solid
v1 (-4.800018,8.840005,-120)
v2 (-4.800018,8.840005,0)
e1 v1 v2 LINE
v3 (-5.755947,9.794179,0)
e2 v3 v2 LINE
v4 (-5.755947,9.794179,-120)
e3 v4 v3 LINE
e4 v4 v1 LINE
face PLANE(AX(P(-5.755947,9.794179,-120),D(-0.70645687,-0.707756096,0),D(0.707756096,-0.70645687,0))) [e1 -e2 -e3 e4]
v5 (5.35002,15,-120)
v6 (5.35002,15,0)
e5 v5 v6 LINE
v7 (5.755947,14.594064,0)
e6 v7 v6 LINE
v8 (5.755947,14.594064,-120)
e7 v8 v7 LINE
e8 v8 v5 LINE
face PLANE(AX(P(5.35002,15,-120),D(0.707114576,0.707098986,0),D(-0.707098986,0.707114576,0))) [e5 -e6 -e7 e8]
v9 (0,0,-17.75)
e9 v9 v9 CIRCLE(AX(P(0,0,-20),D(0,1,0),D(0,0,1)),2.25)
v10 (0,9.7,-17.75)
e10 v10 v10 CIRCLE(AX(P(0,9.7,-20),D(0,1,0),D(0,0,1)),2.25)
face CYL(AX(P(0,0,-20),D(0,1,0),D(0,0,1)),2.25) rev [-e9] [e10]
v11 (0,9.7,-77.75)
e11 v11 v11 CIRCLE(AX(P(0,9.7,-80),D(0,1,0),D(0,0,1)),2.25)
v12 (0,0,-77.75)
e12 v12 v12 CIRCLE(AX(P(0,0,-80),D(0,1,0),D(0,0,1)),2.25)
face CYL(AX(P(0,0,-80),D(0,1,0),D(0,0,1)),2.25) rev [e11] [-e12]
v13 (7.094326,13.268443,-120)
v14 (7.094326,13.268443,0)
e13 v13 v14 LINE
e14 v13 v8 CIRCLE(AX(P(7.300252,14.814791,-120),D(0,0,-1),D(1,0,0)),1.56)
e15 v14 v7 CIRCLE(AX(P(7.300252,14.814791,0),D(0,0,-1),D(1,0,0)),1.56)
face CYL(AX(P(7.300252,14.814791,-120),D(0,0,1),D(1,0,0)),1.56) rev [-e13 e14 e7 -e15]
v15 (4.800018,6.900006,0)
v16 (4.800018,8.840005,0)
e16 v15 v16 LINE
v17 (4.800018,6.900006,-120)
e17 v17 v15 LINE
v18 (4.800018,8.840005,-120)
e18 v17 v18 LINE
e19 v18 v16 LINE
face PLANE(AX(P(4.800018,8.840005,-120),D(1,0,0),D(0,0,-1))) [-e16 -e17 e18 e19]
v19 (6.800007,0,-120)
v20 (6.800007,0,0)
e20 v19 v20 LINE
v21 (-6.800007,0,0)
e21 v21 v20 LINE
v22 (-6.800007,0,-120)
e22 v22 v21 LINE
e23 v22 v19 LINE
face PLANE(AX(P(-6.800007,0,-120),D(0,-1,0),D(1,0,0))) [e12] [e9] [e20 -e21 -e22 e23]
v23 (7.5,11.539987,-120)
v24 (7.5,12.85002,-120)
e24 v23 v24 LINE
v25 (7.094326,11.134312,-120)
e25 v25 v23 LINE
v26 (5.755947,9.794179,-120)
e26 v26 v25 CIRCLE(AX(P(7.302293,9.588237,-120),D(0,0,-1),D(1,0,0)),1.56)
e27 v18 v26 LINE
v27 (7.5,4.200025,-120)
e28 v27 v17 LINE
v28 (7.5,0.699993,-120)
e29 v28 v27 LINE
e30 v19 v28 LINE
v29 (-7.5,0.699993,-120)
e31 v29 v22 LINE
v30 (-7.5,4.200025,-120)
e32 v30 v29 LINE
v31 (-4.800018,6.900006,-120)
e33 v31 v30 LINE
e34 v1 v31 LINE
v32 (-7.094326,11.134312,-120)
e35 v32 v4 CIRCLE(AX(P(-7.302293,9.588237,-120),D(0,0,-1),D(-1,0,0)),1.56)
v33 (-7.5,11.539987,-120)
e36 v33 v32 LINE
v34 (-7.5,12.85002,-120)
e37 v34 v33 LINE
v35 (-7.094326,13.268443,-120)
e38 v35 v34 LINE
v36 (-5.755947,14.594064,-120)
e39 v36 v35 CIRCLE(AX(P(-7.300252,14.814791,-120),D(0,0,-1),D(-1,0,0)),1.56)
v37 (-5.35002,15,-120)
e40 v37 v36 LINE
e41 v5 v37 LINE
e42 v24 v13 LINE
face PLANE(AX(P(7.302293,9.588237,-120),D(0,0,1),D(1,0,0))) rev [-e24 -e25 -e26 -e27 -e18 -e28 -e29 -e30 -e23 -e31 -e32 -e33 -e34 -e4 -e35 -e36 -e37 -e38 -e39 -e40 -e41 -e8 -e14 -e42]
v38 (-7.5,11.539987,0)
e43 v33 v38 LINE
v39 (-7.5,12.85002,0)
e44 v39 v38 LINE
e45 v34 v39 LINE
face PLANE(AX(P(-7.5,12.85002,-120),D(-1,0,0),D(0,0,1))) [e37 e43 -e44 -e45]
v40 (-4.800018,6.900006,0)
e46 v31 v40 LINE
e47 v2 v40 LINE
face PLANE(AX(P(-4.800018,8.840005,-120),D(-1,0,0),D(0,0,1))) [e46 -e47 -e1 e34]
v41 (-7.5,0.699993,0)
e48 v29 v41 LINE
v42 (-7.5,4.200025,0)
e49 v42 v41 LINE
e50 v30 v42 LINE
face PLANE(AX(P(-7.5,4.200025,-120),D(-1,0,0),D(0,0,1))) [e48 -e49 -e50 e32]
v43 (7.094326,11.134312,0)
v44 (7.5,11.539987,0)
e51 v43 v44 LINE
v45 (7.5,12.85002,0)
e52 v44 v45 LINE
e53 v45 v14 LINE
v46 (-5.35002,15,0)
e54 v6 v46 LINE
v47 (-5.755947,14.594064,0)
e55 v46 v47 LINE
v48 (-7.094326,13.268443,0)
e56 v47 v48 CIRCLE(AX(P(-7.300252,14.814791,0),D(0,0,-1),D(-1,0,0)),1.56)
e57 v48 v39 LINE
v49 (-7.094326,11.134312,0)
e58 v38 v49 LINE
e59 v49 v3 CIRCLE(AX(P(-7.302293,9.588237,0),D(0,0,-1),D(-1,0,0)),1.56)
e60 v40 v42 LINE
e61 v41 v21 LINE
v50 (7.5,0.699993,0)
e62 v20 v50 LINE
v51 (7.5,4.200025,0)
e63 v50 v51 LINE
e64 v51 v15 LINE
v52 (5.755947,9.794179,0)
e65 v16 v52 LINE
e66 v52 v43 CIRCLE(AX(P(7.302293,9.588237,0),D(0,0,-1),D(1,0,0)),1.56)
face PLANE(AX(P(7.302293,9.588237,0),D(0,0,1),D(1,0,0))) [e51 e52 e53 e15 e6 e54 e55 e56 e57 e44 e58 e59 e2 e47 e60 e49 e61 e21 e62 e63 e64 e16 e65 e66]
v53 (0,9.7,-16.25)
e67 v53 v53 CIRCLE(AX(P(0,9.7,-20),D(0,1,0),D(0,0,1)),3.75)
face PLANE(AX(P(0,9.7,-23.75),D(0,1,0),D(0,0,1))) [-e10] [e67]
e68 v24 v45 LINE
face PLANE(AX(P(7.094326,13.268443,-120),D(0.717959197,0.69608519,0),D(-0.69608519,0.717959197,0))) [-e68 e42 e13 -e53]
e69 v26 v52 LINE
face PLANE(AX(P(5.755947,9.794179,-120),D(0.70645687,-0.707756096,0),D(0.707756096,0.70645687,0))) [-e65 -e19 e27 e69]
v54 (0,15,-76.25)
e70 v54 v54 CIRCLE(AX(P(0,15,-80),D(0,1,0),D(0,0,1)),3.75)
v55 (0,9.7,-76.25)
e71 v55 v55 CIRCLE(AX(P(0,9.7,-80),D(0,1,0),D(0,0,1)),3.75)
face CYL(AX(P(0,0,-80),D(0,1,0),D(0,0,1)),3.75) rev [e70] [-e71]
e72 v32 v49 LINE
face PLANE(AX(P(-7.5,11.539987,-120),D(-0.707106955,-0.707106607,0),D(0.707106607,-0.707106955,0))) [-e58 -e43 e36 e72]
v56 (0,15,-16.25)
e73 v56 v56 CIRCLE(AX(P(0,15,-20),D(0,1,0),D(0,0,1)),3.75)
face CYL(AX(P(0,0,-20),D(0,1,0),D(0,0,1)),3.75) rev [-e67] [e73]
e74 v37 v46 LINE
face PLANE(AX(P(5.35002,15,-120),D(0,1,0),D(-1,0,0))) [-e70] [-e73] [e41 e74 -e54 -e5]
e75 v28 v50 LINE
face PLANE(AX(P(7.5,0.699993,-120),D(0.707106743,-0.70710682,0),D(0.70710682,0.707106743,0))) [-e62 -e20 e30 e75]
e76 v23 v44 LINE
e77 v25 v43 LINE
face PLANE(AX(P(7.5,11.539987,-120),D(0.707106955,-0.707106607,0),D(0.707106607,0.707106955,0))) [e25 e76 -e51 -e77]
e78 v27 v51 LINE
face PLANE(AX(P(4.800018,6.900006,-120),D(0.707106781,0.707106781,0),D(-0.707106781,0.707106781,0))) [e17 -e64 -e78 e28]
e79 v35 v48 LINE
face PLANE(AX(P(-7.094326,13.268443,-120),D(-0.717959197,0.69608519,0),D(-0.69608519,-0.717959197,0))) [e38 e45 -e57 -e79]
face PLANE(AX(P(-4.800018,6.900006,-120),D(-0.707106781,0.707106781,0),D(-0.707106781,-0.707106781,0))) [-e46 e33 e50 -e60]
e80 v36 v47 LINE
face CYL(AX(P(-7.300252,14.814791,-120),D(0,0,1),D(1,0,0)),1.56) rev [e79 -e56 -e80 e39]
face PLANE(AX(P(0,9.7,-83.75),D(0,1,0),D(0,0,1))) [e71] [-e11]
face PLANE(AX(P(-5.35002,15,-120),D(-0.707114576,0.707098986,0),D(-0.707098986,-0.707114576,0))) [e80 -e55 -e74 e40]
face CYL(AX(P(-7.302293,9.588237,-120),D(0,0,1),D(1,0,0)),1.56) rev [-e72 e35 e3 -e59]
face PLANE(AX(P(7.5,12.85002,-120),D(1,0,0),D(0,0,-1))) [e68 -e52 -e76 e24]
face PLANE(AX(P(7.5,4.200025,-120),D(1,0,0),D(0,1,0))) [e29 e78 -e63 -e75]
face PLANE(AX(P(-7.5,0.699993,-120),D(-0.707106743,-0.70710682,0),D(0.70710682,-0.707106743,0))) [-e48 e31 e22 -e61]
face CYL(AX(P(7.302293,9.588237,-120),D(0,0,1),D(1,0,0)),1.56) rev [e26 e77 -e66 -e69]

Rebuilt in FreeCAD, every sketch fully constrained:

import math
import FreeCAD as App
import Part
import Sketcher

V = App.Vector
Q = App.Units.Quantity


def add_polygon(sketch, points):
    """Adds a closed chain of lines whose ends are joined by coincident constraints."""
    first, n = sketch.GeometryCount, len(points)
    for a, b in zip(points, points[1:] + points[:1]):
        sketch.addGeometry(Part.LineSegment(App.Vector(*a, 0), App.Vector(*b, 0)), False)
    for i in range(n):
        sketch.addConstraint(Sketcher.Constraint("Coincident", first + i, 2, first + (i + 1) % n, 1))

doc = App.newDocument("Part")
params = doc.addObject("Spreadsheet::Sheet", "Params")
for row, (alias, value) in enumerate([
    ("sketch1_radius", "1.56 mm"),
    ("sketch1_height", "1.939999 mm"),
    ("pad1_length", "120 mm"),
    ("sketch2_width", "15 mm"),
    ("sketch2_width2", "9.7 mm"),
    ("sketch2_height", "1.5 mm"),
    ("sketch2_height2", "3.75 mm"),
    ("groove_angle", "360 deg"),
    ("linearpattern_pitch", "60 mm"),
], start=1):
    params.set(f"A{row}", alias)
    params.set(f"B{row}", "=" + value)
    params.setAlias(f"B{row}", alias)

body = doc.addObject("PartDesign::Body", "Body")

sketch1 = body.newObject("Sketcher::SketchObject", "Sketch")
sketch1.AttachmentSupport = (doc.getObject("XY_Plane"), [""])
sketch1.MapMode = "FlatFace"
sketch1.addGeometry([
    Part.LineSegment(V(-7.5, 0.7, 0), V(-6.8, 0, 0)),
    Part.LineSegment(V(-6.8, 0, 0), V(6.8, 0, 0)),
    Part.LineSegment(V(6.8, 0, 0), V(7.5, 0.7, 0)),
    Part.LineSegment(V(7.5, 0.7, 0), V(7.5, 4.2, 0)),
    Part.LineSegment(V(7.5, 4.2, 0), V(4.8, 6.9, 0)),
    Part.LineSegment(V(4.8, 6.9, 0), V(4.8, 8.8, 0)),
    Part.LineSegment(V(4.8, 8.8, 0), V(5.8, 9.8, 0)),
    Part.ArcOfCircle(Part.Circle(V(7.3, 9.6, 0), V(0, 0, 1), 1.6), math.radians(98), math.radians(172)),
    Part.LineSegment(V(7.1, 11.1, 0), V(7.5, 11.5, 0)),
    Part.LineSegment(V(7.5, 11.5, 0), V(7.5, 12.9, 0)),
    Part.LineSegment(V(7.5, 12.9, 0), V(7.1, 13.3, 0)),
    Part.ArcOfCircle(Part.Circle(V(7.3, 14.8, 0), V(0, 0, 1), 1.6), math.radians(-172), math.radians(-98)),
    Part.LineSegment(V(5.8, 14.6, 0), V(5.4, 15, 0)),
    Part.LineSegment(V(5.4, 15, 0), V(-5.4, 15, 0)),
    Part.LineSegment(V(-5.4, 15, 0), V(-5.8, 14.6, 0)),
    Part.ArcOfCircle(Part.Circle(V(-7.3, 14.8, 0), V(0, 0, 1), 1.6), math.radians(-82), math.radians(-8)),
    Part.LineSegment(V(-7.1, 13.3, 0), V(-7.5, 12.9, 0)),
    Part.LineSegment(V(-7.5, 12.9, 0), V(-7.5, 11.5, 0)),
    Part.LineSegment(V(-7.5, 11.5, 0), V(-7.1, 11.1, 0)),
    Part.ArcOfCircle(Part.Circle(V(-7.3, 9.6, 0), V(0, 0, 1), 1.6), math.radians(8), math.radians(82)),
    Part.LineSegment(V(-5.8, 9.8, 0), V(-4.8, 8.8, 0)),
    Part.LineSegment(V(-4.8, 8.8, 0), V(-4.8, 6.9, 0)),
    Part.LineSegment(V(-4.8, 6.9, 0), V(-7.5, 4.2, 0)),
    Part.LineSegment(V(-7.5, 4.2, 0), V(-7.5, 0.7, 0)),
], False)
sketch1.addConstraint([
    Sketcher.Constraint("Coincident", 0, 2, 1, 1),
    Sketcher.Constraint("Coincident", 1, 2, 2, 1),
    Sketcher.Constraint("Coincident", 2, 2, 3, 1),
    Sketcher.Constraint("Coincident", 3, 2, 4, 1),
    Sketcher.Constraint("Coincident", 4, 2, 5, 1),
    Sketcher.Constraint("Coincident", 5, 2, 6, 1),
    Sketcher.Constraint("Coincident", 6, 2, 7, 2),
    Sketcher.Constraint("Coincident", 7, 1, 8, 1),
    Sketcher.Constraint("Coincident", 8, 2, 9, 1),
    Sketcher.Constraint("Coincident", 9, 2, 10, 1),
    Sketcher.Constraint("Coincident", 10, 2, 11, 2),
    Sketcher.Constraint("Coincident", 11, 1, 12, 1),
    Sketcher.Constraint("Coincident", 12, 2, 13, 1),
    Sketcher.Constraint("Coincident", 13, 2, 14, 1),
    Sketcher.Constraint("Coincident", 14, 2, 15, 2),
    Sketcher.Constraint("Coincident", 15, 1, 16, 1),
    Sketcher.Constraint("Coincident", 16, 2, 17, 1),
    Sketcher.Constraint("Coincident", 17, 2, 18, 1),
    Sketcher.Constraint("Coincident", 18, 2, 19, 2),
    Sketcher.Constraint("Coincident", 19, 1, 20, 1),
    Sketcher.Constraint("Coincident", 20, 2, 21, 1),
    Sketcher.Constraint("Coincident", 21, 2, 22, 1),
    Sketcher.Constraint("Coincident", 22, 2, 23, 1),
    Sketcher.Constraint("Coincident", 23, 2, 0, 1),
    Sketcher.Constraint("Horizontal", 1),
    Sketcher.Constraint("Vertical", 3),
    Sketcher.Constraint("Vertical", 5),
    Sketcher.Constraint("Vertical", 9),
    Sketcher.Constraint("Horizontal", 13),
    Sketcher.Constraint("Vertical", 17),
    Sketcher.Constraint("Vertical", 21),
    Sketcher.Constraint("Vertical", 23),
    Sketcher.Constraint("Equal", 7, 11),
    Sketcher.Constraint("Equal", 11, 15),
    Sketcher.Constraint("Equal", 15, 19),
    Sketcher.Constraint("Symmetric", 0, 2, 1, 2, -1, 1),
    Sketcher.Constraint("Symmetric", 11, 3, 15, 3, -2),
    Sketcher.Constraint("Symmetric", 7, 3, 19, 3, -2),
    Sketcher.Constraint("Symmetric", 9, 2, 16, 2, -2),
    Sketcher.Constraint("Symmetric", 5, 2, 20, 2, -2),
    Sketcher.Constraint("Symmetric", 3, 2, 22, 2, -2),
    Sketcher.Constraint("Perpendicular", 0, 2),
    Sketcher.Constraint("Perpendicular", 2, 4),
    Sketcher.Constraint("Perpendicular", 4, 8),
    Sketcher.Constraint("Perpendicular", 8, 18),
    Sketcher.Constraint("Perpendicular", 18, 22),
    Sketcher.Constraint("Horizontal", 11, 1, 14, 2),
    Sketcher.Constraint("Horizontal", 10, 2, 15, 1),
    Sketcher.Constraint("Horizontal", 8, 2, 17, 2),
    Sketcher.Constraint("Horizontal", 7, 1, 18, 2),
    Sketcher.Constraint("Horizontal", 6, 2, 19, 1),
    Sketcher.Constraint("Vertical", 3, 2, 8, 2),
    Sketcher.Constraint("Vertical", 7, 1, 10, 2),
    Sketcher.Constraint("Vertical", 6, 2, 11, 1),
    Sketcher.Constraint("Equal", 12, 14),
    Sketcher.Constraint("Radius", 7, Q("1.56 mm")),
    Sketcher.Constraint("DistanceY", -1, 1, 12, 2, Q("15 mm")),
    Sketcher.Constraint("DistanceY", 5, 1, 5, 2, Q("1.939999 mm")),
    Sketcher.Constraint("DistanceX", -1, 1, 2, 2, Q("7.5 mm")),
    Sketcher.Constraint("DistanceX", 13, 2, 13, 1, Q("10.700039 mm")),
    Sketcher.Constraint("DistanceY", 3, 1, 3, 2, Q("3.500032 mm")),
    Sketcher.Constraint("DistanceX", 0, 2, 7, 3, Q("14.1023 mm")),
    Sketcher.Constraint("DistanceY", 2, 2, 11, 3, Q("14.114799 mm")),
    Sketcher.Constraint("Distance", 0, Q("0.989939 mm")),
    Sketcher.Constraint("Distance", 4, Q("3.818351 mm")),
    Sketcher.Constraint("Distance", 8, Q("0.57371 mm")),
    Sketcher.Constraint("DistanceY", 9, 1, 9, 2, Q("1.310034 mm")),
    Sketcher.Constraint("DistanceY", -1, 1, 6, 2, Q("9.794179 mm")),
    Sketcher.Constraint("DistanceY", -1, 1, 9, 2, Q("12.85002 mm")),
    Sketcher.Constraint("DistanceX", 11, 3, 7, 3, Q("0.002041 mm")),
])
sketch1.setExpression("Constraints[55]", "Params.sketch1_radius")
sketch1.setExpression("Constraints[57]", "Params.sketch1_height")
pad1 = body.newObject("PartDesign::Pad", "Pad")
pad1.Profile = sketch1
pad1.setExpression("Length", "Params.pad1_length")
pad1.Reversed = True

sketch2 = body.newObject("Sketcher::SketchObject", "Sketch001")
sketch2.AttachmentSupport = (doc.getObject("YZ_Plane"), [""])
sketch2.MapMode = "FlatFace"
add_polygon(sketch2, [(15, -23.8), (15, -20), (0, -20), (0, -22.2), (9.7, -22.2), (9.7, -23.8)])
sketch2.addGeometry(Part.LineSegment(V(0, -20, 0), V(15, -20, 0)), True)
sketch2.addConstraint([
    Sketcher.Constraint("Vertical", 0),
    Sketcher.Constraint("Horizontal", 1),
    Sketcher.Constraint("Vertical", 2),
    Sketcher.Constraint("Horizontal", 3),
    Sketcher.Constraint("Vertical", 4),
    Sketcher.Constraint("Horizontal", 5),
    Sketcher.Constraint("Horizontal", 6),
    Sketcher.Constraint("Coincident", 6, 1, 1, 2),
    Sketcher.Constraint("PointOnObject", 1, 2, -2),
    Sketcher.Constraint("Vertical", 5, 2, 6, 2),
    Sketcher.Constraint("DistanceX", 1, 2, 1, 1, Q("15 mm")),
    Sketcher.Constraint("DistanceX", 3, 1, 3, 2, Q("9.7 mm")),
    Sketcher.Constraint("DistanceY", 4, 2, 4, 1, Q("1.5 mm")),
    Sketcher.Constraint("DistanceY", 0, 2, -1, 1, Q("20 mm")),
    Sketcher.Constraint("DistanceY", 0, 1, 0, 2, Q("3.75 mm")),
])
sketch2.setExpression("Constraints[16]", "Params.sketch2_width")
sketch2.setExpression("Constraints[17]", "Params.sketch2_width2")
sketch2.setExpression("Constraints[18]", "Params.sketch2_height")
sketch2.setExpression("Constraints[20]", "Params.sketch2_height2")
groove = body.newObject("PartDesign::Groove", "Groove")
groove.Profile = sketch2
groove.ReferenceAxis = (sketch2, ["Axis0"])
groove.setExpression("Angle", "Params.groove_angle")
doc.recompute()

linearpattern = body.newObject("PartDesign::LinearPattern", "LinearPattern")
linearpattern.Originals = [groove]
linearpattern.Direction = (doc.getObject("Z_Axis"), [""])
linearpattern.Mode = "offset"
linearpattern.setExpression("Offset", "Params.linearpattern_pitch")
linearpattern.Occurrences = 2
linearpattern.Reversed = True
body.Tip = linearpattern

doc.recompute()
